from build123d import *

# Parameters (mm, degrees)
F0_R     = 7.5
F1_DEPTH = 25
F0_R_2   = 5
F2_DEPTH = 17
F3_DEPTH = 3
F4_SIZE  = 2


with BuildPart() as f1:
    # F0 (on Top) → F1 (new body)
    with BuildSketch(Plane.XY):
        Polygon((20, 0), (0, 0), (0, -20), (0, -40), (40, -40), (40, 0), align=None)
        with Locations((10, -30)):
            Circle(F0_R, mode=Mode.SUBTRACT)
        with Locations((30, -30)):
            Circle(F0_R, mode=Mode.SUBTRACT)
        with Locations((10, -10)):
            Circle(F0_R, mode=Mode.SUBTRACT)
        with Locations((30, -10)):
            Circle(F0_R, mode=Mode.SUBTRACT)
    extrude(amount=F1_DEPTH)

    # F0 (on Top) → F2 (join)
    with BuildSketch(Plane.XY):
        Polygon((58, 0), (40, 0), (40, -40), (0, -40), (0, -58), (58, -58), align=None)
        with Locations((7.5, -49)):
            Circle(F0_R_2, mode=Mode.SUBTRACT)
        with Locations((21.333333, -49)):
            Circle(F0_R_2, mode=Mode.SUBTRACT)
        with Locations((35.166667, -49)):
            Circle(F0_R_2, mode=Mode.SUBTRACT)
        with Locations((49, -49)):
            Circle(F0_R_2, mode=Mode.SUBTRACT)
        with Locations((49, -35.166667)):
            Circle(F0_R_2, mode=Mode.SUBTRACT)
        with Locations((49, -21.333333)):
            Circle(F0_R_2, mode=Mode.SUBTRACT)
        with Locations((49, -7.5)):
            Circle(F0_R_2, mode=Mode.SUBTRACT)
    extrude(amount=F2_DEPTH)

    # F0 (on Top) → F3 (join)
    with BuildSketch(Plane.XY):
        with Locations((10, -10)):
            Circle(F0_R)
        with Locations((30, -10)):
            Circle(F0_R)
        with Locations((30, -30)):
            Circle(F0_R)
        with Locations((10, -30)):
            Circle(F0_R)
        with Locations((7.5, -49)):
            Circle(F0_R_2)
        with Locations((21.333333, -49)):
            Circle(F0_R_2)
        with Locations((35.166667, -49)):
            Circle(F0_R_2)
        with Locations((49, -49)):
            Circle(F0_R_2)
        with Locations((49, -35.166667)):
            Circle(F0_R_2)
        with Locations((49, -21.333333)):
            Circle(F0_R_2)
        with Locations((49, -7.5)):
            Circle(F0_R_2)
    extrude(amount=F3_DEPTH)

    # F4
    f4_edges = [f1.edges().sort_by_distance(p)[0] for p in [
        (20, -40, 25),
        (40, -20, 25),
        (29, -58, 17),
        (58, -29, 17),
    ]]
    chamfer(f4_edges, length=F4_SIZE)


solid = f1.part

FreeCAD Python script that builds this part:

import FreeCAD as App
import Part
import Sketcher

V = App.Vector


def edges_at(feature, points):
    """Names of the edges that pass closest to the given points."""
    edges = feature.Shape.Edges
    near = lambda p: min(range(len(edges)), key=lambda i: edges[i].distToShape(Part.Vertex(*p))[0])
    return sorted({f"Edge{near(p) + 1}" for p in points})

doc = App.newDocument("Part")
body = doc.addObject("PartDesign::Body", "Body")

# Sketch on XY plane
sketch1 = body.newObject("Sketcher::SketchObject", "Sketch")
sketch1.AttachmentSupport = (doc.getObject("XY_Plane"), [""])
sketch1.MapMode = "FlatFace"
sketch1.addGeometry([
    Part.LineSegment(V(0, 0, 0), V(0, -40, 0)),  # 0
    Part.LineSegment(V(0, -40, 0), V(40, -40, 0)),  # 1
    Part.LineSegment(V(40, -40, 0), V(40, 0, 0)),  # 2
    Part.LineSegment(V(40, 0, 0), V(0, 0, 0)),  # 3
    Part.Circle(V(10, -30, 0), V(0, 0, 1), 8),  # 4
    Part.Circle(V(30, -30, 0), V(0, 0, 1), 8),  # 5
    Part.Circle(V(10, -10, 0), V(0, 0, 1), 8),  # 6
    Part.Circle(V(30, -10, 0), V(0, 0, 1), 8),  # 7
], False)
sketch1.addConstraint([
    Sketcher.Constraint("Coincident", 0, 2, 1, 1),
    Sketcher.Constraint("Coincident", 1, 2, 2, 1),
    Sketcher.Constraint("Coincident", 2, 2, 3, 1),
    Sketcher.Constraint("Coincident", 3, 2, 0, 1),
    Sketcher.Constraint("Vertical", 0),
    Sketcher.Constraint("Horizontal", 1),
    Sketcher.Constraint("Vertical", 2),
    Sketcher.Constraint("Horizontal", 3),
    Sketcher.Constraint("Coincident", 3, 2, -1, 1),
    Sketcher.Constraint("Equal", 4, 5),
    Sketcher.Constraint("Equal", 5, 6),
    Sketcher.Constraint("Equal", 6, 7),
    Sketcher.Constraint("Horizontal", 4, 3, 5, 3),
    Sketcher.Constraint("Horizontal", 6, 3, 7, 3),
    Sketcher.Constraint("Vertical", 4, 3, 6, 3),
    Sketcher.Constraint("Vertical", 5, 3, 7, 3),
    Sketcher.Constraint("Equal", 3, 0),
    Sketcher.Constraint("Diameter", 4, 15.0),
    Sketcher.Constraint("DistanceX", 1, 1, 1, 2, 40.0),
    Sketcher.Constraint("DistanceX", -1, 1, 4, 3, 10.0),
    Sketcher.Constraint("DistanceY", 4, 3, -1, 1, 30.0),
    Sketcher.Constraint("DistanceX", -1, 1, 5, 3, 30.0),
    Sketcher.Constraint("DistanceY", 6, 3, -1, 1, 10.0),
])
pad1 = body.newObject("PartDesign::Pad", "Pad")
pad1.Profile = sketch1
pad1.Length = 25

# Sketch on XY plane
sketch2 = body.newObject("Sketcher::SketchObject", "Sketch001")
sketch2.AttachmentSupport = (doc.getObject("XY_Plane"), [""])
sketch2.MapMode = "FlatFace"
sketch2.addGeometry([
    Part.LineSegment(V(58, 0, 0), V(40, 0, 0)),  # 0
    Part.LineSegment(V(40, 0, 0), V(40, -40, 0)),  # 1
    Part.LineSegment(V(40, -40, 0), V(0, -40, 0)),  # 2
    Part.LineSegment(V(0, -40, 0), V(0, -58, 0)),  # 3
    Part.LineSegment(V(0, -58, 0), V(58, -58, 0)),  # 4
    Part.LineSegment(V(58, -58, 0), V(58, 0, 0)),  # 5
    Part.Circle(V(8, -49, 0), V(0, 0, 1), 5),  # 6
    Part.Circle(V(21, -49, 0), V(0, 0, 1), 5),  # 7
    Part.Circle(V(35, -49, 0), V(0, 0, 1), 5),  # 8
    Part.Circle(V(49, -49, 0), V(0, 0, 1), 5),  # 9
    Part.Circle(V(49, -35, 0), V(0, 0, 1), 5),  # 10
    Part.Circle(V(49, -21, 0), V(0, 0, 1), 5),  # 11
    Part.Circle(V(49, -8, 0), V(0, 0, 1), 5),  # 12
], False)
sketch2.addConstraint([
    Sketcher.Constraint("Coincident", 0, 2, 1, 1),
    Sketcher.Constraint("Coincident", 1, 2, 2, 1),
    Sketcher.Constraint("Coincident", 2, 2, 3, 1),
    Sketcher.Constraint("Coincident", 3, 2, 4, 1),
    Sketcher.Constraint("Coincident", 4, 2, 5, 1),
    Sketcher.Constraint("Coincident", 5, 2, 0, 1),
    Sketcher.Constraint("Horizontal", 0),
    Sketcher.Constraint("Vertical", 1),
    Sketcher.Constraint("Horizontal", 2),
    Sketcher.Constraint("Vertical", 3),
    Sketcher.Constraint("Horizontal", 4),
    Sketcher.Constraint("Vertical", 5),
    Sketcher.Constraint("Equal", 6, 7),
    Sketcher.Constraint("Equal", 7, 8),
    Sketcher.Constraint("Equal", 8, 9),
    Sketcher.Constraint("Equal", 9, 10),
    Sketcher.Constraint("Equal", 10, 11),
    Sketcher.Constraint("Equal", 11, 12),
    Sketcher.Constraint("PointOnObject", 0, 2, -1),
    Sketcher.Constraint("PointOnObject", 2, 2, -2),
    Sketcher.Constraint("Horizontal", 6, 3, 7, 3),
    Sketcher.Constraint("Horizontal", 7, 3, 8, 3),
    Sketcher.Constraint("Horizontal", 8, 3, 9, 3),
    Sketcher.Constraint("Vertical", 9, 3, 10, 3),
    Sketcher.Constraint("Vertical", 10, 3, 11, 3),
    Sketcher.Constraint("Vertical", 11, 3, 12, 3),
    Sketcher.Constraint("Equal", 2, 1),
    Sketcher.Constraint("Equal", 0, 3),
    Sketcher.Constraint("Diameter", 6, 10.0),
    Sketcher.Constraint("DistanceX", 0, 2, 0, 1, 18.0),
    Sketcher.Constraint("DistanceX", 2, 2, 2, 1, 40.0),
    Sketcher.Constraint("DistanceY", 6, 3, -1, 1, 49.0),
    Sketcher.Constraint("DistanceX", -1, 1, 9, 3, 49.0),
    Sketcher.Constraint("DistanceX", -1, 1, 6, 3, 7.5),
    Sketcher.Constraint("DistanceY", 12, 3, -1, 1, 7.5),
    Sketcher.Constraint("DistanceX", -1, 1, 7, 3, 21.333333),
    Sketcher.Constraint("DistanceX", -1, 1, 8, 3, 35.166667),
    Sketcher.Constraint("DistanceY", 10, 3, -1, 1, 35.166667),
    Sketcher.Constraint("DistanceY", 11, 3, -1, 1, 21.333333),
])
pad2 = body.newObject("PartDesign::Pad", "Pad001")
pad2.Profile = sketch2
pad2.Length = 17

# Sketch on XY plane
sketch3 = body.newObject("Sketcher::SketchObject", "Sketch002")
sketch3.AttachmentSupport = (doc.getObject("XY_Plane"), [""])
sketch3.MapMode = "FlatFace"
sketch3.addGeometry([
    Part.Circle(V(10, -10, 0), V(0, 0, 1), 8),  # 0
    Part.Circle(V(30, -10, 0), V(0, 0, 1), 8),  # 1
    Part.Circle(V(30, -30, 0), V(0, 0, 1), 8),  # 2
    Part.Circle(V(10, -30, 0), V(0, 0, 1), 8),  # 3
    Part.Circle(V(8, -49, 0), V(0, 0, 1), 5),  # 4
    Part.Circle(V(21, -49, 0), V(0, 0, 1), 5),  # 5
    Part.Circle(V(35, -49, 0), V(0, 0, 1), 5),  # 6
    Part.Circle(V(49, -49, 0), V(0, 0, 1), 5),  # 7
    Part.Circle(V(49, -35, 0), V(0, 0, 1), 5),  # 8
    Part.Circle(V(49, -21, 0), V(0, 0, 1), 5),  # 9
    Part.Circle(V(49, -8, 0), V(0, 0, 1), 5),  # 10
], False)
sketch3.addConstraint([
    Sketcher.Constraint("Equal", 0, 1),
    Sketcher.Constraint("Equal", 1, 2),
    Sketcher.Constraint("Equal", 2, 3),
    Sketcher.Constraint("Equal", 4, 5),
    Sketcher.Constraint("Equal", 5, 6),
    Sketcher.Constraint("Equal", 6, 7),
    Sketcher.Constraint("Equal", 7, 8),
    Sketcher.Constraint("Equal", 8, 9),
    Sketcher.Constraint("Equal", 9, 10),
    Sketcher.Constraint("Horizontal", 0, 3, 1, 3),
    Sketcher.Constraint("Horizontal", 2, 3, 3, 3),
    Sketcher.Constraint("Horizontal", 4, 3, 5, 3),
    Sketcher.Constraint("Horizontal", 5, 3, 6, 3),
    Sketcher.Constraint("Horizontal", 6, 3, 7, 3),
    Sketcher.Constraint("Vertical", 1, 3, 2, 3),
    Sketcher.Constraint("Vertical", 0, 3, 3, 3),
    Sketcher.Constraint("Vertical", 7, 3, 8, 3),
    Sketcher.Constraint("Vertical", 8, 3, 9, 3),
    Sketcher.Constraint("Vertical", 9, 3, 10, 3),
    Sketcher.Constraint("Diameter", 0, 15.0),
    Sketcher.Constraint("Diameter", 4, 10.0),
    Sketcher.Constraint("DistanceX", -1, 1, 0, 3, 10.0),
    Sketcher.Constraint("DistanceY", 0, 3, -1, 1, 10.0),
    Sketcher.Constraint("DistanceX", -1, 1, 1, 3, 30.0),
    Sketcher.Constraint("DistanceY", 2, 3, -1, 1, 30.0),
    Sketcher.Constraint("DistanceY", 4, 3, -1, 1, 49.0),
    Sketcher.Constraint("DistanceX", -1, 1, 7, 3, 49.0),
    Sketcher.Constraint("DistanceX", -1, 1, 4, 3, 7.5),
    Sketcher.Constraint("DistanceY", 10, 3, -1, 1, 7.5),
    Sketcher.Constraint("DistanceX", -1, 1, 5, 3, 21.333333),
    Sketcher.Constraint("DistanceX", -1, 1, 6, 3, 35.166667),
    Sketcher.Constraint("DistanceY", 8, 3, -1, 1, 35.166667),
    Sketcher.Constraint("DistanceY", 9, 3, -1, 1, 21.333333),
])
pad3 = body.newObject("PartDesign::Pad", "Pad002")
pad3.Profile = sketch3
pad3.Length = 3
doc.recompute()

chamfer = body.newObject("PartDesign::Chamfer", "Chamfer")
chamfer.Base = (pad3, edges_at(pad3, [
    (20, -40, 25),
    (40, -20, 25),
    (29, -58, 17),
    (58, -29, 17),
]))
chamfer.Size = 2

doc.recompute()
